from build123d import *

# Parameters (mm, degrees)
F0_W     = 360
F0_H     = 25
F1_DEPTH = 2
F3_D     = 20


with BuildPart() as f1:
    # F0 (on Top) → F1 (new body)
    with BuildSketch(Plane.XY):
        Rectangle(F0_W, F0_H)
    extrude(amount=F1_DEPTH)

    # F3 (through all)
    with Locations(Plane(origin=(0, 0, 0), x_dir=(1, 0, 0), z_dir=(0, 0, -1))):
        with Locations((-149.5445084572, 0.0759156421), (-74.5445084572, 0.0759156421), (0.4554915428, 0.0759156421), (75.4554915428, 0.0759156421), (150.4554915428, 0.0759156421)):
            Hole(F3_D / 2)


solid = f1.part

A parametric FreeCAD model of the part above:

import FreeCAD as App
import Part
import Sketcher
Q = App.Units.Quantity

doc = App.newDocument("Part")
body = doc.addObject("PartDesign::Body", "Body")

sketch1 = body.newObject("Sketcher::SketchObject", "Sketch")
sketch1.AttachmentSupport = (doc.getObject("XY_Plane"), [""])
sketch1.MapMode = "FlatFace"
sketch1.addGeometry(Part.LineSegment(App.Vector(-180, 12, 0), App.Vector(-180, -12, 0)), False)
sketch1.addGeometry(Part.LineSegment(App.Vector(-180, -12, 0), App.Vector(180, -12, 0)), False)
sketch1.addGeometry(Part.LineSegment(App.Vector(180, -12, 0), App.Vector(180, 12, 0)), False)
sketch1.addGeometry(Part.LineSegment(App.Vector(180, 12, 0), App.Vector(-180, 12, 0)), False)
sketch1.addConstraint(Sketcher.Constraint("Coincident", 0, 2, 1, 1))
sketch1.addConstraint(Sketcher.Constraint("Coincident", 1, 2, 2, 1))
sketch1.addConstraint(Sketcher.Constraint("Coincident", 2, 2, 3, 1))
sketch1.addConstraint(Sketcher.Constraint("Coincident", 3, 2, 0, 1))
sketch1.addConstraint(Sketcher.Constraint("Vertical", 0))
sketch1.addConstraint(Sketcher.Constraint("Horizontal", 1))
sketch1.addConstraint(Sketcher.Constraint("Vertical", 2))
sketch1.addConstraint(Sketcher.Constraint("Horizontal", 3))
sketch1.addConstraint(Sketcher.Constraint("Symmetric", 0, 2, 2, 2, -1, 1))
sketch1.addConstraint(Sketcher.Constraint("DistanceX", 1, 1, 1, 2, Q("360 mm")))
sketch1.addConstraint(Sketcher.Constraint("DistanceY", 0, 2, 0, 1, Q("25 mm")))
pad1 = body.newObject("PartDesign::Pad", "Pad")
pad1.Profile = sketch1
pad1.Length = 2

sketch2 = body.newObject("Sketcher::SketchObject", "Sketch001")
sketch2.AttachmentSupport = (doc.getObject("XY_Plane"), [""])
sketch2.MapMode = "FlatFace"
sketch2.addGeometry(Part.Circle(App.Vector(-150, 0, 0), App.Vector(0, 0, 1), 10), False)
sketch2.addGeometry(Part.Circle(App.Vector(-75, 0, 0), App.Vector(0, 0, 1), 10), False)
sketch2.addGeometry(Part.Circle(App.Vector(0, 0, 0), App.Vector(0, 0, 1), 10), False)
sketch2.addGeometry(Part.Circle(App.Vector(75, 0, 0), App.Vector(0, 0, 1), 10), False)
sketch2.addGeometry(Part.Circle(App.Vector(150, 0, 0), App.Vector(0, 0, 1), 10), False)
sketch2.addConstraint(Sketcher.Constraint("Equal", 0, 1))
sketch2.addConstraint(Sketcher.Constraint("Equal", 1, 2))
sketch2.addConstraint(Sketcher.Constraint("Equal", 2, 3))
sketch2.addConstraint(Sketcher.Constraint("Equal", 3, 4))
sketch2.addConstraint(Sketcher.Constraint("Horizontal", 0, 3, 1, 3))
sketch2.addConstraint(Sketcher.Constraint("Horizontal", 1, 3, 2, 3))
sketch2.addConstraint(Sketcher.Constraint("Horizontal", 2, 3, 3, 3))
sketch2.addConstraint(Sketcher.Constraint("Horizontal", 3, 3, 4, 3))
sketch2.addConstraint(Sketcher.Constraint("Diameter", 0, Q("20 mm")))
sketch2.addConstraint(Sketcher.Constraint("DistanceX", 0, 3, 1, 3, Q("75 mm")))
sketch2.addConstraint(Sketcher.Constraint("DistanceX", 1, 3, 2, 3, Q("75 mm")))
sketch2.addConstraint(Sketcher.Constraint("DistanceX", 2, 3, 3, 3, Q("75 mm")))
sketch2.addConstraint(Sketcher.Constraint("DistanceX", 3, 3, 4, 3, Q("75 mm")))
sketch2.addConstraint(Sketcher.Constraint("DistanceX", 0, 3, -1, 1, Q("149.544508 mm")))
sketch2.addConstraint(Sketcher.Constraint("DistanceY", 0, 3, -1, 1, Q("0.075916 mm")))
doc.recompute()
hole = body.newObject("PartDesign::Hole", "Hole")
hole.Profile = sketch2
hole.ThreadType = "None"
hole.Diameter = 20
hole.DepthType = "ThroughAll"
hole.Reversed = True

doc.recompute()
